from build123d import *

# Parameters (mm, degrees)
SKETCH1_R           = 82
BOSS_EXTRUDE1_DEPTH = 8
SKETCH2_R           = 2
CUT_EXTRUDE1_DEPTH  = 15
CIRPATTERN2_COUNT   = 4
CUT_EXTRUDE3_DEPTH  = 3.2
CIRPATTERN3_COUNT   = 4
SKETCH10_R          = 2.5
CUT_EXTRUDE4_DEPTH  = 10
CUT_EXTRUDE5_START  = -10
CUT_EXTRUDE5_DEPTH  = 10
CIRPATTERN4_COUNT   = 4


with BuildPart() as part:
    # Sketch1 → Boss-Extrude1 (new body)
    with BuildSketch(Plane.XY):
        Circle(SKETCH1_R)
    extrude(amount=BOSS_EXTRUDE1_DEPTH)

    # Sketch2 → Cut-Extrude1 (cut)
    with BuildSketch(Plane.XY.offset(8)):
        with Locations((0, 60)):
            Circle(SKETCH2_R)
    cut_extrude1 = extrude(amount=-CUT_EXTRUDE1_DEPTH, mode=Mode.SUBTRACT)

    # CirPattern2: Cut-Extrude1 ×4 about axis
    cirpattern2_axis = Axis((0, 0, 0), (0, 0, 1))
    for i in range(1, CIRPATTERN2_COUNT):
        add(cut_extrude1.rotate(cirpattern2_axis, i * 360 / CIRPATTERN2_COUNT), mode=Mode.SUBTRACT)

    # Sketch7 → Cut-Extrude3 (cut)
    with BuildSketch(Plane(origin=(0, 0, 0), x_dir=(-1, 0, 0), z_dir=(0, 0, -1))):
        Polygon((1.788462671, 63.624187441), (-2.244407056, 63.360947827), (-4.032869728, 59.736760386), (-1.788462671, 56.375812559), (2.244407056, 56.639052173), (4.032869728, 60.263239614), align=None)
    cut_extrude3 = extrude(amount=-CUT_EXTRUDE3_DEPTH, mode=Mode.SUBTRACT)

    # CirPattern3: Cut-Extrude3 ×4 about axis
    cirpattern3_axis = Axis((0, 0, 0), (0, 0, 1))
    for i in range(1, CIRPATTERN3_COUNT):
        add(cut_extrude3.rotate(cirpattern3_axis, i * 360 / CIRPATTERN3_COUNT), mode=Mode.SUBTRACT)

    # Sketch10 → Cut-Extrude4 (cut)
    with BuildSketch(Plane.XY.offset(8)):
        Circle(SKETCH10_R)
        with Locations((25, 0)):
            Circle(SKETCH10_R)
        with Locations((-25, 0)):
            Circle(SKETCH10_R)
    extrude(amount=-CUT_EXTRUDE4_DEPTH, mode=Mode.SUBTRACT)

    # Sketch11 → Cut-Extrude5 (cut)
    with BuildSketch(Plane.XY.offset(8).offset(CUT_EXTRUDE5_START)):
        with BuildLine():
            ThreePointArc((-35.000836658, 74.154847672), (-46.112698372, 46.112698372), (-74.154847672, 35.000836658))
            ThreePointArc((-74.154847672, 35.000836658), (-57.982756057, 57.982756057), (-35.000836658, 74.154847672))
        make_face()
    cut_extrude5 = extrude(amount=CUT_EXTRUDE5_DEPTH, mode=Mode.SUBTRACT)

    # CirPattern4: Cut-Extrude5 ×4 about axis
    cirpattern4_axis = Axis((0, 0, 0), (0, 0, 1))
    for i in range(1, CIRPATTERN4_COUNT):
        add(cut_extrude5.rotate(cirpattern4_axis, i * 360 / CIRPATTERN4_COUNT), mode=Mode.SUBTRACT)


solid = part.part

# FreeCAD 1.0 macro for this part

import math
import FreeCAD as App
import Part
import Sketcher
from FreeCAD import Vector

doc = App.newDocument("Part")
body = doc.addObject("PartDesign::Body", "Body")

# Sketch on XY plane
sketch1 = body.newObject("Sketcher::SketchObject", "Sketch")
sketch1.AttachmentSupport = (doc.getObject("XY_Plane"), [""])
sketch1.MapMode = "FlatFace"
sketch1.addGeometry(Part.Circle(Vector(0, 0, 0), Vector(0, 0, 1), 82), False)
sketch1.addConstraint([
    Sketcher.Constraint("Coincident", 0, 3, -1, 1),
    Sketcher.Constraint("Diameter", 0, 164.0),
])
pad1 = body.newObject("PartDesign::Pad", "Pad")
pad1.Profile = sketch1
pad1.Length = 8

# Sketch on XY plane
sketch2 = body.newObject("Sketcher::SketchObject", "Sketch001")
sketch2.AttachmentSupport = (doc.getObject("XY_Plane"), [""])
sketch2.MapMode = "FlatFace"
sketch2.AttachmentOffset = App.Placement(Vector(0, 0, 8), App.Rotation())
sketch2.addGeometry(Part.Circle(Vector(0, 60, 0), Vector(0, 0, 1), 2), False)
sketch2.addConstraint([
    Sketcher.Constraint("PointOnObject", 0, 3, -2),
    Sketcher.Constraint("Diameter", 0, 4.0),
    Sketcher.Constraint("DistanceY", -1, 1, 0, 3, 60.0),
])
pocket1 = body.newObject("PartDesign::Pocket", "Pocket")
pocket1.Profile = sketch2
pocket1.Length = 15
doc.recompute()

polarpattern = body.newObject("PartDesign::PolarPattern", "PolarPattern")
polarpattern.Originals = [pocket1]
polarpattern.Axis = (doc.getObject("Z_Axis"), [""])
polarpattern.Angle = 360
polarpattern.Occurrences = 4
body.Tip = polarpattern

# Sketch on XY plane
sketch3 = body.newObject("Sketcher::SketchObject", "Sketch002")
sketch3.AttachmentSupport = (doc.getObject("XY_Plane"), [""])
sketch3.MapMode = "FlatFace"
sketch3.addGeometry([
    Part.LineSegment(Vector(-1.8, 63.6, 0), Vector(2.2, 63.4, 0)),  # 0
    Part.LineSegment(Vector(2.2, 63.4, 0), Vector(4, 59.7, 0)),  # 1
    Part.LineSegment(Vector(4, 59.7, 0), Vector(1.8, 56.4, 0)),  # 2
    Part.LineSegment(Vector(1.8, 56.4, 0), Vector(-2.2, 56.6, 0)),  # 3
    Part.LineSegment(Vector(-2.2, 56.6, 0), Vector(-4, 60.3, 0)),  # 4
    Part.LineSegment(Vector(-4, 60.3, 0), Vector(-1.8, 63.6, 0)),  # 5
], False)
sketch3.addConstraint([
    Sketcher.Constraint("Coincident", 0, 2, 1, 1),
    Sketcher.Constraint("Coincident", 1, 2, 2, 1),
    Sketcher.Constraint("Coincident", 2, 2, 3, 1),
    Sketcher.Constraint("Coincident", 3, 2, 4, 1),
    Sketcher.Constraint("Coincident", 4, 2, 5, 1),
    Sketcher.Constraint("Coincident", 5, 2, 0, 1),
    Sketcher.Constraint("Parallel", 0, 3),
    Sketcher.Constraint("Parallel", 1, 4),
    Sketcher.Constraint("Parallel", 2, 5),
    Sketcher.Constraint("Equal", 0, 1),
    Sketcher.Constraint("Equal", 1, 2),
    Sketcher.Constraint("Equal", 2, 3),
    Sketcher.Constraint("Distance", 0, 4.041452),
    Sketcher.Constraint("DistanceX", -1, 1, 1, 2, 4.03287),
    Sketcher.Constraint("DistanceY", -1, 1, 1, 2, 59.73676),
    Sketcher.Constraint("DistanceX", 4, 2, -1, 1, 4.03287),
    Sketcher.Constraint("DistanceY", -1, 1, 4, 2, 60.26324),
    Sketcher.Constraint("DistanceX", 3, 2, 2, 2, 4.03287),
])
pocket2 = body.newObject("PartDesign::Pocket", "Pocket001")
pocket2.Profile = sketch3
pocket2.Length = 3.2
pocket2.Reversed = True
doc.recompute()

polarpattern2 = body.newObject("PartDesign::PolarPattern", "PolarPattern001")
polarpattern2.Originals = [pocket2]
polarpattern2.Axis = (doc.getObject("Z_Axis"), [""])
polarpattern2.Angle = 360
polarpattern2.Occurrences = 4
body.Tip = polarpattern2

# Sketch on XY plane
sketch4 = body.newObject("Sketcher::SketchObject", "Sketch003")
sketch4.AttachmentSupport = (doc.getObject("XY_Plane"), [""])
sketch4.MapMode = "FlatFace"
sketch4.AttachmentOffset = App.Placement(Vector(0, 0, 8), App.Rotation())
sketch4.addGeometry([
    Part.Circle(Vector(0, 0, 0), Vector(0, 0, 1), 2.5),
    Part.Circle(Vector(25, 0, 0), Vector(0, 0, 1), 2.5),
    Part.Circle(Vector(-25, 0, 0), Vector(0, 0, 1), 2.5),
], False)
sketch4.addConstraint([
    Sketcher.Constraint("Coincident", 0, 3, -1, 1),
    Sketcher.Constraint("Equal", 0, 1),
    Sketcher.Constraint("Equal", 1, 2),
    Sketcher.Constraint("Symmetric", 1, 3, 2, 3, -1, 1),
    Sketcher.Constraint("PointOnObject", 1, 3, -1),
    Sketcher.Constraint("Diameter", 0, 5.0),
    Sketcher.Constraint("DistanceX", -1, 1, 1, 3, 25.0),
])
pocket3 = body.newObject("PartDesign::Pocket", "Pocket002")
pocket3.Profile = sketch4
pocket3.Length = 10

# Sketch on XY plane
sketch5 = body.newObject("Sketcher::SketchObject", "Sketch004")
sketch5.AttachmentSupport = (doc.getObject("XY_Plane"), [""])
sketch5.MapMode = "FlatFace"
sketch5.AttachmentOffset = App.Placement(Vector(0, 0, -2), App.Rotation())
sketch5.addGeometry([
    Part.ArcOfCircle(Part.Circle(Vector(-73, 73, 0), Vector(0, 0, 1), 38), math.radians(-92), math.radians(2)),
    Part.ArcOfCircle(Part.Circle(Vector(0, 0, 0), Vector(0, 0, 1), 82), math.radians(115), math.radians(155)),
], False)
sketch5.addConstraint([
    Sketcher.Constraint("Coincident", 0, 1, 1, 2),
    Sketcher.Constraint("Coincident", 1, 1, 0, 2),
    Sketcher.Constraint("Coincident", 1, 3, -1, 1),
    Sketcher.Constraint("Radius", 0, 38.0),
    Sketcher.Constraint("Radius", 1, 82.0),
    Sketcher.Constraint("DistanceX", 0, 1, 0, 3, 1.172092),
    Sketcher.Constraint("DistanceY", 0, 3, 1, 1, 1.172092),
])
pocket4 = body.newObject("PartDesign::Pocket", "Pocket003")
pocket4.Profile = sketch5
pocket4.Length = 10
pocket4.Reversed = True
doc.recompute()

polarpattern3 = body.newObject("PartDesign::PolarPattern", "PolarPattern002")
polarpattern3.Originals = [pocket4]
polarpattern3.Axis = (doc.getObject("Z_Axis"), [""])
polarpattern3.Angle = 360
polarpattern3.Occurrences = 4
body.Tip = polarpattern3

doc.recompute()
